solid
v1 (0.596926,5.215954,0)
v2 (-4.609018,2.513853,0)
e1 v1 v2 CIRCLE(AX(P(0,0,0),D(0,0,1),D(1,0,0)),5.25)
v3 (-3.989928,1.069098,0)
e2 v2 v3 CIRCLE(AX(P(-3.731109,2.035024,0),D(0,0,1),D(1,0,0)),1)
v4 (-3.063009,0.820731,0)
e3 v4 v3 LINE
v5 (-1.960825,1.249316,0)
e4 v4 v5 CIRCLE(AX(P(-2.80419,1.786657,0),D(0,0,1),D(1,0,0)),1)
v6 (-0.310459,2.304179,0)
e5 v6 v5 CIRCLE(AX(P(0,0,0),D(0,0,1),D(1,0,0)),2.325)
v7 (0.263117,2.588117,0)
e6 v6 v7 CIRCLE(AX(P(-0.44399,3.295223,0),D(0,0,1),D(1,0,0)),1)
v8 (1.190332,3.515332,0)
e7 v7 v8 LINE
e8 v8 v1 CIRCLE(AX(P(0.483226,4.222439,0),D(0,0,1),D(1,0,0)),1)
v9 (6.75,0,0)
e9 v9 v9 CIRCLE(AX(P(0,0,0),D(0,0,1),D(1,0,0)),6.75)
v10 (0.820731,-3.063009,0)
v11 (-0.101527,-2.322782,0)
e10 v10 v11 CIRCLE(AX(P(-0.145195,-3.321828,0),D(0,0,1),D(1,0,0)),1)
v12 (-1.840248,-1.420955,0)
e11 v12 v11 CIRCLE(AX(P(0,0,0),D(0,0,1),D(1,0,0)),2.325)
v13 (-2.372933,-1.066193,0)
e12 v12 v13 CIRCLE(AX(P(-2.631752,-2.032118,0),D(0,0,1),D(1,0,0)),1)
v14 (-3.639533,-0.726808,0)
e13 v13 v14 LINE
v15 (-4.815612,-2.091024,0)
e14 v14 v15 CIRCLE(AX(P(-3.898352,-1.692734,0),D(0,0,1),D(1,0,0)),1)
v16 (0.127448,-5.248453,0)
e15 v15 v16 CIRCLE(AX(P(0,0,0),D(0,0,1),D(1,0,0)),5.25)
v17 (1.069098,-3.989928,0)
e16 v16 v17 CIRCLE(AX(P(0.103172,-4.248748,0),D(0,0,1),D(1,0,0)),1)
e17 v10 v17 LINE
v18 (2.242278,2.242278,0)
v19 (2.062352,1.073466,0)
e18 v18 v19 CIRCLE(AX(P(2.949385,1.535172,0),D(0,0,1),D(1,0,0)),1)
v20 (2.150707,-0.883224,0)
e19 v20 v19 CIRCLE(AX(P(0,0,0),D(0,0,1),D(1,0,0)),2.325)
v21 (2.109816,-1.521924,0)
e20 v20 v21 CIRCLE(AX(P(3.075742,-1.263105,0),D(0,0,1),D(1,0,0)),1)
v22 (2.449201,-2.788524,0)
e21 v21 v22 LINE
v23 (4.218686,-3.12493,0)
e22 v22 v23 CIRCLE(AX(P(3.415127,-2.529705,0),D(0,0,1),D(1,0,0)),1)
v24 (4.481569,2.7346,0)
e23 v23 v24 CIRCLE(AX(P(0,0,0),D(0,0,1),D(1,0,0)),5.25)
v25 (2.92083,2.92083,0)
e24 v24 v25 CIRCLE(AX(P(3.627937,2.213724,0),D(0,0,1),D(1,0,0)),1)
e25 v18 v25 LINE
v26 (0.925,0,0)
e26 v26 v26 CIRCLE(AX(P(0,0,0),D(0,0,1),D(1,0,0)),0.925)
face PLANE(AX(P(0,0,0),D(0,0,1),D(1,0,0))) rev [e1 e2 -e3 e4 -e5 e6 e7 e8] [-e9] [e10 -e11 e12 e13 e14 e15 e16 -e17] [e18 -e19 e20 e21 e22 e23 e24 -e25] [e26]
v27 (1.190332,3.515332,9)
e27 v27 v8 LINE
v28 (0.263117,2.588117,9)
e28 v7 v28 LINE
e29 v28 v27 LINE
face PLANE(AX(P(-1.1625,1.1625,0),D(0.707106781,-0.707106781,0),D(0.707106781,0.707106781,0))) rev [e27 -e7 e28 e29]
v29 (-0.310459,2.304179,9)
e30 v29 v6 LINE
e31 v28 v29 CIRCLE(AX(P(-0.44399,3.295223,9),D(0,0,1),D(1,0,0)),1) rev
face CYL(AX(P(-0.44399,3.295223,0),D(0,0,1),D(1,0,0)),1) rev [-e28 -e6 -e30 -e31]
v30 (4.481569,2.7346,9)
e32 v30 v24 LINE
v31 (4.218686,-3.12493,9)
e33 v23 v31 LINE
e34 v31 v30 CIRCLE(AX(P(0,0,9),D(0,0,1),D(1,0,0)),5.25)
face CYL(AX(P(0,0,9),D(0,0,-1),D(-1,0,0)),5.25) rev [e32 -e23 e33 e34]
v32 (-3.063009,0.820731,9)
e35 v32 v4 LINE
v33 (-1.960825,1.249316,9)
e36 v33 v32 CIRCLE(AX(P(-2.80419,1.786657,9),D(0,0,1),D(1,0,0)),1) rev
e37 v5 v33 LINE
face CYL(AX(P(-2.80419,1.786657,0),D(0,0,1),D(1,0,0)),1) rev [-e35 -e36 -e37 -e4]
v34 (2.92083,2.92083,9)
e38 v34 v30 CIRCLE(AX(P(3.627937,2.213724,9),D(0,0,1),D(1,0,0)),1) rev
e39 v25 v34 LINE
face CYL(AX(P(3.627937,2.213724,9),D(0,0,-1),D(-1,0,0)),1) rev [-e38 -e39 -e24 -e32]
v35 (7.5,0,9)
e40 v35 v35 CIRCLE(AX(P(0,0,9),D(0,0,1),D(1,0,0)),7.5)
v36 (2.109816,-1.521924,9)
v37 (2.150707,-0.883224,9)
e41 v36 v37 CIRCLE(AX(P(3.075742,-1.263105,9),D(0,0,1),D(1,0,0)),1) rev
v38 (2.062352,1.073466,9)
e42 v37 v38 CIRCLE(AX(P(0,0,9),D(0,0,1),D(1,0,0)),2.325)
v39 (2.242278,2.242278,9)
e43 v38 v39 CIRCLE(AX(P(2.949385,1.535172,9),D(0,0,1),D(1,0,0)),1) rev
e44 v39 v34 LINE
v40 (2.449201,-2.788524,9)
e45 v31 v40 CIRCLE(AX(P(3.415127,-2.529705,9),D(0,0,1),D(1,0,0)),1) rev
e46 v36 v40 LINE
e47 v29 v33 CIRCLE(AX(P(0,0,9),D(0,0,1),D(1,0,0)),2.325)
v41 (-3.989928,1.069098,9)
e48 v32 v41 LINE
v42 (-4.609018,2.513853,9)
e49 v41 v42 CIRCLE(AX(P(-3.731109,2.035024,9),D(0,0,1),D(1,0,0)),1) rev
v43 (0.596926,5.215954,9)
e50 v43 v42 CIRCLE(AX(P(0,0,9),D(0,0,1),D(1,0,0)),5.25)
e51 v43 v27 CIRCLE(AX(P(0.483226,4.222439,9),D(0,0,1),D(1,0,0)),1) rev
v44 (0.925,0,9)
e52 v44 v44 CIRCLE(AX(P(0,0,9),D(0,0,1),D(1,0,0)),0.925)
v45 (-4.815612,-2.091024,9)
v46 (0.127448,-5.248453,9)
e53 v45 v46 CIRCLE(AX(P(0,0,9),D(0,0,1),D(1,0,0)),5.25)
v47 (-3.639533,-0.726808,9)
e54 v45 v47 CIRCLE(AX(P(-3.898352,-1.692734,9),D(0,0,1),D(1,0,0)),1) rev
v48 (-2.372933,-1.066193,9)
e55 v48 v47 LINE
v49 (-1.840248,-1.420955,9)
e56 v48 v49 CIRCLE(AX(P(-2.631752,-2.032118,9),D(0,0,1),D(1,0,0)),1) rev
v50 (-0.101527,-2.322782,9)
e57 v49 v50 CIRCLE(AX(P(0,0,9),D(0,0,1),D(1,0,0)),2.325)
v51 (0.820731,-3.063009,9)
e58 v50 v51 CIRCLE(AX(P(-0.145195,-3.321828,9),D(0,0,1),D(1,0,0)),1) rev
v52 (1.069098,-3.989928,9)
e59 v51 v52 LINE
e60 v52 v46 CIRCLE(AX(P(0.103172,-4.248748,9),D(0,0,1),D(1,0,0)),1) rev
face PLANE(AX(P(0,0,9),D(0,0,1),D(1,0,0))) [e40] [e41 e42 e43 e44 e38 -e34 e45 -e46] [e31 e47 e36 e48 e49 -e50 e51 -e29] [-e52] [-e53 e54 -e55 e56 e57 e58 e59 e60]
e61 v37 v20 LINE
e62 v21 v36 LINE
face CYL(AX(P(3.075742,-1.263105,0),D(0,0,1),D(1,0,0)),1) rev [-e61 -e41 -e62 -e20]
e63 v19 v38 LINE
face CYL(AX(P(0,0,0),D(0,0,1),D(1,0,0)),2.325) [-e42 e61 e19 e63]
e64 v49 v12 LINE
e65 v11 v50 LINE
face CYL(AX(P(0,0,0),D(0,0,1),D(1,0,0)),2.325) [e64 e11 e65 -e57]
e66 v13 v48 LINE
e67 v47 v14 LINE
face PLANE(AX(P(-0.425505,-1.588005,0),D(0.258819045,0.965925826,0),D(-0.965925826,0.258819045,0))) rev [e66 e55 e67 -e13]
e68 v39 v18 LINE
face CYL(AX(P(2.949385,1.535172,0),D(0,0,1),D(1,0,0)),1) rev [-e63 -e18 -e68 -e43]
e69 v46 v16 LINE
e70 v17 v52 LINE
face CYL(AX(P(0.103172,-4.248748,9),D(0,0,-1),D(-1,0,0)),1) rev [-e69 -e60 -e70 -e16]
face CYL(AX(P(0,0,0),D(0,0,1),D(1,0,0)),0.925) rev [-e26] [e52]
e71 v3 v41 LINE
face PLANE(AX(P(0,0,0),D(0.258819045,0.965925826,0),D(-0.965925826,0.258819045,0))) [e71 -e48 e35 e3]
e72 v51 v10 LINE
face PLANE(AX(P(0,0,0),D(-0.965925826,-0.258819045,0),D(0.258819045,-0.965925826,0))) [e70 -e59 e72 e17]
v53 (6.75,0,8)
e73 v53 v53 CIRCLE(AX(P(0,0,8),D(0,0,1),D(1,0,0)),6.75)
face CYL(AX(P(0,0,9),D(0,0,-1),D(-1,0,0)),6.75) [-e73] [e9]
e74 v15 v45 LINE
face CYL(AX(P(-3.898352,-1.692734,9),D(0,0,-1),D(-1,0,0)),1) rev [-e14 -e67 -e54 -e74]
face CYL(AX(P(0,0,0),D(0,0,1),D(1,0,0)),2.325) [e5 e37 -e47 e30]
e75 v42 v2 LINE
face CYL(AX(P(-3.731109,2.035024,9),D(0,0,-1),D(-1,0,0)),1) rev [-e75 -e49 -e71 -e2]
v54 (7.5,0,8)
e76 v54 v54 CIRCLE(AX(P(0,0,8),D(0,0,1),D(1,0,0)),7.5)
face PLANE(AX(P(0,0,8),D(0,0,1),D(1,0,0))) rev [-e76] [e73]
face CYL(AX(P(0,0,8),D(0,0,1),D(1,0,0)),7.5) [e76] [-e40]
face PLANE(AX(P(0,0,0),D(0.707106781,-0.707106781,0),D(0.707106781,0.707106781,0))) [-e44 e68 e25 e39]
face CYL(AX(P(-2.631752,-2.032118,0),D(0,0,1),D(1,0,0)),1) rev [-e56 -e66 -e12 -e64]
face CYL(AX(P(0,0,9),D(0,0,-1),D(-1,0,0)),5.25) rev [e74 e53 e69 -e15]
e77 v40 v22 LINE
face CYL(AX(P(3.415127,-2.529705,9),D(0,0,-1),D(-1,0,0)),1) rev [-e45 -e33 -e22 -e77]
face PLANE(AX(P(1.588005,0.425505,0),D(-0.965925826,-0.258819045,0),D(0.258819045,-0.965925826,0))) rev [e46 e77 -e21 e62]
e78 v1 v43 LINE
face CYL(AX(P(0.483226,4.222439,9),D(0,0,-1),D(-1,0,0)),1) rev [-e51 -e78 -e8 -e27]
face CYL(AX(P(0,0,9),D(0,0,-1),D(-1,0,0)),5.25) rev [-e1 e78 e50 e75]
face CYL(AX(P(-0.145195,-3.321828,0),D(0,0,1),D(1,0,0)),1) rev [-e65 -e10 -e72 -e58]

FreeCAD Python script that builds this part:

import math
import FreeCAD as App
import Part
import Sketcher

V = App.Vector
Q = App.Units.Quantity


def edges_at(feature, points):
    """Names of the edges that pass closest to the given points."""
    edges = feature.Shape.Edges
    near = lambda p: min(range(len(edges)), key=lambda i: edges[i].distToShape(Part.Vertex(*p))[0])
    return sorted({f"Edge{near(p) + 1}" for p in points})

doc = App.newDocument("Part")
body = doc.addObject("PartDesign::Body", "Body")

# Sketch on XY plane
sketch1 = body.newObject("Sketcher::SketchObject", "Sketch")
sketch1.AttachmentSupport = (doc.getObject("XY_Plane"), [""])
sketch1.MapMode = "FlatFace"
sketch1.addGeometry(Part.Circle(V(0, 0, 0), V(0, 0, 1), 7), False)
sketch1.addGeometry(Part.Circle(V(0, 0, 0), V(0, 0, 1), 5), False)
sketch1.addConstraint(Sketcher.Constraint("Coincident", 0, 3, -1, 1))
sketch1.addConstraint(Sketcher.Constraint("Coincident", 1, 3, -1, 1))
sketch1.addConstraint(Sketcher.Constraint("Diameter", 0, 13.5))
sketch1.addConstraint(Sketcher.Constraint("Diameter", 1, 10.5))
pad1 = body.newObject("PartDesign::Pad", "Pad")
pad1.Profile = sketch1
pad1.Length = 9

# Sketch on XY plane
sketch2 = body.newObject("Sketcher::SketchObject", "Sketch001")
sketch2.AttachmentSupport = (doc.getObject("XY_Plane"), [""])
sketch2.MapMode = "FlatFace"
sketch2.AttachmentOffset = App.Placement(V(0, 0, 9), App.Rotation())
sketch2.addGeometry(Part.ArcOfCircle(Part.Circle(V(0, 0, 0), V(0, 0, 1), 2.3), math.radians(90), math.radians(165)), False)
sketch2.addGeometry(Part.LineSegment(V(-2.2, 0.6, 0), V(-5.8, 1.5, 0)), False)
sketch2.addGeometry(Part.LineSegment(V(-5.8, 1.5, 0), V(-6.2, 0, 0)), False)
sketch2.addGeometry(Part.LineSegment(V(-6.2, 0, 0), V(-2, -1.2, 0)), False)
sketch2.addGeometry(Part.ArcOfCircle(Part.Circle(V(0, 0, 0), V(0, 0, 1), 2.3), math.radians(-150), math.radians(-75)), False)
sketch2.addGeometry(Part.LineSegment(V(0.6, -2.2, 0), V(1.5, -5.8, 0)), False)
sketch2.addGeometry(Part.LineSegment(V(1.5, -5.8, 0), V(3.1, -5.4, 0)), False)
sketch2.addGeometry(Part.LineSegment(V(3.1, -5.4, 0), V(2, -1.2, 0)), False)
sketch2.addGeometry(Part.ArcOfCircle(Part.Circle(V(0, 0, 0), V(0, 0, 1), 2.3), math.radians(-30), math.radians(45)), False)
sketch2.addGeometry(Part.LineSegment(V(1.6, 1.6, 0), V(4.2, 4.2, 0)), False)
sketch2.addGeometry(Part.LineSegment(V(4.2, 4.2, 0), V(3.1, 5.4, 0)), False)
sketch2.addGeometry(Part.LineSegment(V(3.1, 5.4, 0), V(0, 2.3, 0)), False)
sketch2.addGeometry(Part.Circle(V(0, 0, 0), V(0, 0, 1), 0.9), False)
sketch2.addConstraint(Sketcher.Constraint("Coincident", 0, 2, 1, 1))
sketch2.addConstraint(Sketcher.Constraint("Coincident", 1, 2, 2, 1))
sketch2.addConstraint(Sketcher.Constraint("Coincident", 2, 2, 3, 1))
sketch2.addConstraint(Sketcher.Constraint("Coincident", 3, 2, 4, 1))
sketch2.addConstraint(Sketcher.Constraint("Coincident", 4, 2, 5, 1))
sketch2.addConstraint(Sketcher.Constraint("Coincident", 5, 2, 6, 1))
sketch2.addConstraint(Sketcher.Constraint("Coincident", 6, 2, 7, 1))
sketch2.addConstraint(Sketcher.Constraint("Coincident", 7, 2, 8, 1))
sketch2.addConstraint(Sketcher.Constraint("Coincident", 8, 2, 9, 1))
sketch2.addConstraint(Sketcher.Constraint("Coincident", 9, 2, 10, 1))
sketch2.addConstraint(Sketcher.Constraint("Coincident", 10, 2, 11, 1))
sketch2.addConstraint(Sketcher.Constraint("Coincident", 11, 2, 0, 1))
sketch2.addConstraint(Sketcher.Constraint("Coincident", 0, 3, -1, 1))
sketch2.addConstraint(Sketcher.Constraint("Coincident", 4, 3, -1, 1))
sketch2.addConstraint(Sketcher.Constraint("Coincident", 8, 3, -1, 1))
sketch2.addConstraint(Sketcher.Constraint("Coincident", 12, 3, -1, 1))
sketch2.addConstraint(Sketcher.Constraint("Equal", 0, 4))
sketch2.addConstraint(Sketcher.Constraint("Equal", 4, 8))
sketch2.addConstraint(Sketcher.Constraint("PointOnObject", 11, 2, -2))
sketch2.addConstraint(Sketcher.Constraint("Perpendicular", 1, 2))
sketch2.addConstraint(Sketcher.Constraint("Perpendicular", 2, 3))
sketch2.addConstraint(Sketcher.Constraint("Perpendicular", 5, 6))
sketch2.addConstraint(Sketcher.Constraint("Perpendicular", 6, 7))
sketch2.addConstraint(Sketcher.Constraint("Perpendicular", 9, 10))
sketch2.addConstraint(Sketcher.Constraint("Perpendicular", 10, 11))
sketch2.addConstraint(Sketcher.Constraint("Horizontal", 3, 2, 7, 2))
sketch2.addConstraint(Sketcher.Constraint("Equal", 1, 5))
sketch2.addConstraint(Sketcher.Constraint("Equal", 2, 6))
sketch2.addConstraint(Sketcher.Constraint("Equal", 3, 7))
sketch2.addConstraint(Sketcher.Constraint("Equal", 5, 9))
sketch2.addConstraint(Sketcher.Constraint("Equal", 6, 10))
sketch2.addConstraint(Sketcher.Constraint("Equal", 7, 11))
sketch2.addConstraint(Sketcher.Constraint("Diameter", 12, 1.85))
sketch2.addConstraint(Sketcher.Constraint("Angle", 1, Q("165 deg")))
sketch2.addConstraint(Sketcher.Constraint("Angle", 5, Q("-75 deg")))
sketch2.addConstraint(Sketcher.Constraint("Radius", 0, 2.325))
sketch2.addConstraint(Sketcher.Constraint("DistanceX", 8, 2, 9, 2, 2.587601))
sketch2.addConstraint(Sketcher.Constraint("DistanceX", 10, 2, 9, 2, 1.1625))
pad2 = body.newObject("PartDesign::Pad", "Pad001")
pad2.Profile = sketch2
pad2.Length = 9
pad2.Reversed = True
doc.recompute()

fillet = body.newObject("PartDesign::Fillet", "Fillet")
fillet.Base = (pad2, edges_at(pad2, [
    (0.602, -2.246, 4.5),
    (-2.014, -1.163, 4.5),
    (-5.071, 1.359, 4.5),
    (-2.246, 0.602, 4.5),
    (0, 2.325, 4.5),
    (3.712, 3.712, 4.5),
    (1.644, 1.644, 4.5),
    (2.014, -1.163, 4.5),
    (1.359, -5.071, 4.5),
]))
fillet.Radius = 1

# Sketch on XY plane
sketch3 = body.newObject("Sketcher::SketchObject", "Sketch002")
sketch3.AttachmentSupport = (doc.getObject("XY_Plane"), [""])
sketch3.MapMode = "FlatFace"
sketch3.AttachmentOffset = App.Placement(V(0, 0, 8), App.Rotation())
sketch3.addGeometry(Part.Circle(V(0, 0, 0), V(0, 0, 1), 8), False)
sketch3.addGeometry(Part.Circle(V(0, 0, 0), V(0, 0, 1), 7), False)
sketch3.addConstraint(Sketcher.Constraint("Coincident", 0, 3, -1, 1))
sketch3.addConstraint(Sketcher.Constraint("Coincident", 1, 3, -1, 1))
sketch3.addConstraint(Sketcher.Constraint("Diameter", 0, 15.0))
sketch3.addConstraint(Sketcher.Constraint("Diameter", 1, 13.5))
pad3 = body.newObject("PartDesign::Pad", "Pad002")
pad3.Profile = sketch3
pad3.Length = 1
doc.recompute()

fillet2 = body.newObject("PartDesign::Fillet", "Fillet001")
fillet2.Base = (pad3, edges_at(pad3, [(-5.242, -0.298, 4.5), (2.363, 4.688, 4.5), (2.878, -4.391, 4.5)]))
fillet2.Radius = 1

doc.recompute()
